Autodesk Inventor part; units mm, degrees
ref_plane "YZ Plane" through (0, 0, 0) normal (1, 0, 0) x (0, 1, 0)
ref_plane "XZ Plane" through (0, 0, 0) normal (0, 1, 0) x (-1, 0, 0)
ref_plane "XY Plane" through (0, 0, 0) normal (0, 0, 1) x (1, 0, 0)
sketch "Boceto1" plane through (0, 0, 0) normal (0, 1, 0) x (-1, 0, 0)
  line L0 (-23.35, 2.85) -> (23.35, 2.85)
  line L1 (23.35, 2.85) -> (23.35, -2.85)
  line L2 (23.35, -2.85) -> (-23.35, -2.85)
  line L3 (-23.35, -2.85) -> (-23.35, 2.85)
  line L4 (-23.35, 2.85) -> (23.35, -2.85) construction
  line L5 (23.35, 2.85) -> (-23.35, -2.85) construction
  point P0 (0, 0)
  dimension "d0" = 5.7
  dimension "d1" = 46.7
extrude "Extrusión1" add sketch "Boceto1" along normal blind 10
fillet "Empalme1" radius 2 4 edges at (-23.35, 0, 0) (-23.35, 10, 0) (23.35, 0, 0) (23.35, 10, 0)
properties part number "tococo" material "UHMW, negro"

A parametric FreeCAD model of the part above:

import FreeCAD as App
import Part
import Sketcher

V = App.Vector
Q = App.Units.Quantity


def edges_at(feature, points):
    """Names of the edges that pass closest to the given points."""
    edges = feature.Shape.Edges
    near = lambda p: min(range(len(edges)), key=lambda i: edges[i].distToShape(Part.Vertex(*p))[0])
    return sorted({f"Edge{near(p) + 1}" for p in points})

doc = App.newDocument("Part")
body = doc.addObject("PartDesign::Body", "Body")

sketch1 = body.newObject("Sketcher::SketchObject", "Sketch")
sketch1.AttachmentSupport = (doc.getObject("XZ_Plane"), [""])
sketch1.MapMode = "FlatFace"
sketch1.addGeometry(Part.LineSegment(V(-23, 3, 0), V(23, 3, 0)), False)
sketch1.addGeometry(Part.LineSegment(V(23, 3, 0), V(23, -3, 0)), False)
sketch1.addGeometry(Part.LineSegment(V(23, -3, 0), V(-23, -3, 0)), False)
sketch1.addGeometry(Part.LineSegment(V(-23, -3, 0), V(-23, 3, 0)), False)
sketch1.addConstraint(Sketcher.Constraint("Coincident", 0, 2, 1, 1))
sketch1.addConstraint(Sketcher.Constraint("Coincident", 1, 2, 2, 1))
sketch1.addConstraint(Sketcher.Constraint("Coincident", 2, 2, 3, 1))
sketch1.addConstraint(Sketcher.Constraint("Coincident", 3, 2, 0, 1))
sketch1.addConstraint(Sketcher.Constraint("Horizontal", 0))
sketch1.addConstraint(Sketcher.Constraint("Vertical", 1))
sketch1.addConstraint(Sketcher.Constraint("Horizontal", 2))
sketch1.addConstraint(Sketcher.Constraint("Vertical", 3))
sketch1.addConstraint(Sketcher.Constraint("Symmetric", 0, 2, 2, 2, -1, 1))
sketch1.addConstraint(Sketcher.Constraint("DistanceX", 0, 1, 0, 2, Q("46.7 mm")))
sketch1.addConstraint(Sketcher.Constraint("DistanceY", 1, 2, 1, 1, Q("5.7 mm")))
pad1 = body.newObject("PartDesign::Pad", "Pad")
pad1.Profile = sketch1
pad1.Length = 10
pad1.Reversed = True
doc.recompute()

fillet = body.newObject("PartDesign::Fillet", "Fillet")
fillet.Base = (pad1, edges_at(pad1, [
    (-23.35, 0, 0),
    (-23.35, 10, 0),
    (23.35, 0, 0),
    (23.35, 10, 0),
]))
fillet.Radius = 2

doc.recompute()
